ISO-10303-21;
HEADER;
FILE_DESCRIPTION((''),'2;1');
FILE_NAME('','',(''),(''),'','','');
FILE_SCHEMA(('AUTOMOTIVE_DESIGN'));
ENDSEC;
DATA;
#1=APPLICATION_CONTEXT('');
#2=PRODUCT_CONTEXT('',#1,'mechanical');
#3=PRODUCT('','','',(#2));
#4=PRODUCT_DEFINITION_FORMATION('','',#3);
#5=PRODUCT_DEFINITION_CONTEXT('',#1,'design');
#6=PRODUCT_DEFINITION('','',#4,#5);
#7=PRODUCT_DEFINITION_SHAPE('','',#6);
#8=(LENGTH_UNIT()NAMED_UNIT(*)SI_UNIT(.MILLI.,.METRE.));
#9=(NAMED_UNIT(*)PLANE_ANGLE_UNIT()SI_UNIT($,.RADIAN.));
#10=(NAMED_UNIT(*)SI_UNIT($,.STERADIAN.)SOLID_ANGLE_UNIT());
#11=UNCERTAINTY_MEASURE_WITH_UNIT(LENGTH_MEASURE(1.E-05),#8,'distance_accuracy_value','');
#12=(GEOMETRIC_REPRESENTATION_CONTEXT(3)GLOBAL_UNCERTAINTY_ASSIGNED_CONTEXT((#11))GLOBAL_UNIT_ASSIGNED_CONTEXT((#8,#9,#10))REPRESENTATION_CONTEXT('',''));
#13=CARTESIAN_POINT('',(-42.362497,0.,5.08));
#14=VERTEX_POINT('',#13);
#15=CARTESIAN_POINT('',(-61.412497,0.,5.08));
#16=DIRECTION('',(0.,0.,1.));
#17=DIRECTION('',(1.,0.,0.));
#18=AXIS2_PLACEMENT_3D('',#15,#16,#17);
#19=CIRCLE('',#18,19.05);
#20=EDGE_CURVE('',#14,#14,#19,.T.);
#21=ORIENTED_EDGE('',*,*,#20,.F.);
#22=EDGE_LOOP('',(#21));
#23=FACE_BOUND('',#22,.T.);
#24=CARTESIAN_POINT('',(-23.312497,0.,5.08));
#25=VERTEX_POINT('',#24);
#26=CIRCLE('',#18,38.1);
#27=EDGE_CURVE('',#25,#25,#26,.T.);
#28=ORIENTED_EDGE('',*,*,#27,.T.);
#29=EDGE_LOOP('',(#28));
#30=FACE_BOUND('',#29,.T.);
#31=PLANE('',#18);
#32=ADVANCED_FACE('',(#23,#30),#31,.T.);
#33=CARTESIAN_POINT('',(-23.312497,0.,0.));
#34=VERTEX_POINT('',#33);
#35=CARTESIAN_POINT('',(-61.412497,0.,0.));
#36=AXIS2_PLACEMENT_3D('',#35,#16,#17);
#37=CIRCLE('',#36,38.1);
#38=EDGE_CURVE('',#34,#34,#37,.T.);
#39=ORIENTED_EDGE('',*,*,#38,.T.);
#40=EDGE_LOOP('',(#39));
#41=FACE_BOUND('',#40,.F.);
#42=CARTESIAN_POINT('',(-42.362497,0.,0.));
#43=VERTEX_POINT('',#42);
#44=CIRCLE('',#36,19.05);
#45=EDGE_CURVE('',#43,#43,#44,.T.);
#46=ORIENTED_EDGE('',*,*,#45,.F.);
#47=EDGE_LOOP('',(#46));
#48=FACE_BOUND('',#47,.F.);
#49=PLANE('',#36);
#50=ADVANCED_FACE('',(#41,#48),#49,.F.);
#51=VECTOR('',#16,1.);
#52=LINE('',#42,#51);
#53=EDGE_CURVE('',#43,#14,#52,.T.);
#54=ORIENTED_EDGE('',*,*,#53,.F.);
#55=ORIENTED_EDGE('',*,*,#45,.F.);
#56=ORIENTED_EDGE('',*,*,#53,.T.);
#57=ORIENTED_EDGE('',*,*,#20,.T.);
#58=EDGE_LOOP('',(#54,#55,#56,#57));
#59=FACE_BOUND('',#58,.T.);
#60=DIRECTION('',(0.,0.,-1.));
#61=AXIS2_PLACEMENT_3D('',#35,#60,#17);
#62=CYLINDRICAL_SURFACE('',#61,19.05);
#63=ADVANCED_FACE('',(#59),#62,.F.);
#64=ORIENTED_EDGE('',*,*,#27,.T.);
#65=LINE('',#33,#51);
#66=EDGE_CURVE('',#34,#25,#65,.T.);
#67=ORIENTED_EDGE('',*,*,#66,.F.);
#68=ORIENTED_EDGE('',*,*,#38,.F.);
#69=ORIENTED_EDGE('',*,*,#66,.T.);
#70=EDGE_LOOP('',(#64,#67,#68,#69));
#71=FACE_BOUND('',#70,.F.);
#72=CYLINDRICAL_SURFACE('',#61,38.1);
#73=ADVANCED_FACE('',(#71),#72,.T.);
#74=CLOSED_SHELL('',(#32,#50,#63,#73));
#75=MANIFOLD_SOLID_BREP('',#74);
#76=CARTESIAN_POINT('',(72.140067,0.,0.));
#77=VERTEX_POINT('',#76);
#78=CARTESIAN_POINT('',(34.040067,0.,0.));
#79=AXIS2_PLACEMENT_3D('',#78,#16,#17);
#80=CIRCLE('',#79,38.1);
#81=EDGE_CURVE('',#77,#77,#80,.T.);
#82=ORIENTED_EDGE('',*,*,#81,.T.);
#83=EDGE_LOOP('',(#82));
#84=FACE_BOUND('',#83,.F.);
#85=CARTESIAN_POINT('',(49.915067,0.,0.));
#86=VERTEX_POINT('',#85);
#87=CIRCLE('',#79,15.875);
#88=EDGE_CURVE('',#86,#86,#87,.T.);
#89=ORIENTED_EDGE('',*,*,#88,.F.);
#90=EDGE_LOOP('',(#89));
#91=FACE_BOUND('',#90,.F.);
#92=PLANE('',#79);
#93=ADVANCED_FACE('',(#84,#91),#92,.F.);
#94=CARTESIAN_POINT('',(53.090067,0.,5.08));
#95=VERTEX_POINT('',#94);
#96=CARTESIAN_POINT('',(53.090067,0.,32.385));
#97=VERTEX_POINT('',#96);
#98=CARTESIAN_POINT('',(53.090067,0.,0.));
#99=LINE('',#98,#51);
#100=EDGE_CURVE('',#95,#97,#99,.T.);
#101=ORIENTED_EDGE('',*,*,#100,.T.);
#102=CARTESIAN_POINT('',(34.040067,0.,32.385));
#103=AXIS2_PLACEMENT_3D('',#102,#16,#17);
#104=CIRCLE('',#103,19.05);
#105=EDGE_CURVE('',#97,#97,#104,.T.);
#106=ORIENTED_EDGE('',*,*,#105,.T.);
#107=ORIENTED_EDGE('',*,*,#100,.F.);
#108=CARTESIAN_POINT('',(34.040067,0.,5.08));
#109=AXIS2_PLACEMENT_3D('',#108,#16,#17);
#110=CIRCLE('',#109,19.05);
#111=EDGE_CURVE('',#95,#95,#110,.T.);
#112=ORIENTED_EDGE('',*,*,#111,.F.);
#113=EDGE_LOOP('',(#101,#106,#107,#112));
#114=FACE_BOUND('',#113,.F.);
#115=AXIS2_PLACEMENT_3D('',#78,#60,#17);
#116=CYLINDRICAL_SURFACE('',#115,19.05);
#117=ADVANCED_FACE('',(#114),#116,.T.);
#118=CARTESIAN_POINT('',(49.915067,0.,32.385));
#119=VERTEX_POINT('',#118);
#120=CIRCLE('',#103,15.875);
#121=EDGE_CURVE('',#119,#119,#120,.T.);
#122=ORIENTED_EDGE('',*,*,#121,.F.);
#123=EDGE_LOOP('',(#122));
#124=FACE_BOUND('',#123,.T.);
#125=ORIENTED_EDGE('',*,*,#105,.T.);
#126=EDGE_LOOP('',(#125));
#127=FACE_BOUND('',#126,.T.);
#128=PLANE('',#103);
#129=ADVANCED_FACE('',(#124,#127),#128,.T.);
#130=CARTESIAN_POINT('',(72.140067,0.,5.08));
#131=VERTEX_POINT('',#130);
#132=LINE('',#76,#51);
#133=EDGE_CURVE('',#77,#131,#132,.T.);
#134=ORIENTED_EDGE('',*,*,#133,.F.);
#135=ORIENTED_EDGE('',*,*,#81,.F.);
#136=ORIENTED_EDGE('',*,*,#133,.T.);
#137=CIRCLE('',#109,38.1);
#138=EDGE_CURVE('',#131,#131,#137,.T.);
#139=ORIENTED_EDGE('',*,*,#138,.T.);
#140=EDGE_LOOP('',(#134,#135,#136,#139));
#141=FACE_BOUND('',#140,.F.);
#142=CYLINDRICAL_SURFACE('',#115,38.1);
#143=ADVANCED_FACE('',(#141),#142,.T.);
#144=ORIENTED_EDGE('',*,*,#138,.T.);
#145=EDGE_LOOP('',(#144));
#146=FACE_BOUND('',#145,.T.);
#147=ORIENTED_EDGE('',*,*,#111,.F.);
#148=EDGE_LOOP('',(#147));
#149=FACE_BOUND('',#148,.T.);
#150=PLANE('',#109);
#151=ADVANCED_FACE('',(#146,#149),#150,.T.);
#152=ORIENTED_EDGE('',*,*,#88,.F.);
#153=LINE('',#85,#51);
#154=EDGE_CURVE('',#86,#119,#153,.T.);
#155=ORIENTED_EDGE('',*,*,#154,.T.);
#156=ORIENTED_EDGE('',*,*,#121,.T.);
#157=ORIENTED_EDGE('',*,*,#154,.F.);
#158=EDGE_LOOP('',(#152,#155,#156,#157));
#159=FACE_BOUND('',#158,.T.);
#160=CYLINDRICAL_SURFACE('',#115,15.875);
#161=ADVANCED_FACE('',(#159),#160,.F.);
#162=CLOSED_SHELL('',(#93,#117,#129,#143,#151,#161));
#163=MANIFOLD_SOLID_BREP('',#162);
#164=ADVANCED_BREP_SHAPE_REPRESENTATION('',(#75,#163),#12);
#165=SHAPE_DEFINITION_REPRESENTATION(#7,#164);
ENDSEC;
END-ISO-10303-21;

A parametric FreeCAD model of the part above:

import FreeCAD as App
import Part
import Sketcher

V = App.Vector
Q = App.Units.Quantity

doc = App.newDocument("Part")
body = doc.addObject("PartDesign::Body", "Body")
body.AllowCompound = True

sketch1 = doc.addObject("Sketcher::SketchObject", "Sketch")
body.addObject(sketch1)
sketch1.AttachmentSupport = (doc.XY_Plane, [""])
sketch1.MapMode = "FlatFace"
sketch1.addGeometry(Part.Circle(V(34, 0, 0), V(0, 0, 1), 38), False)
sketch1.addGeometry(Part.Circle(V(34, 0, 0), V(0, 0, 1), 19), False)
sketch1.addGeometry(Part.Circle(V(-61, 0, 0), V(0, 0, 1), 38), False)
sketch1.addGeometry(Part.Circle(V(-61, 0, 0), V(0, 0, 1), 19), False)
sketch1.addConstraint(Sketcher.Constraint("Coincident", 1, 3, 0, 3))
sketch1.addConstraint(Sketcher.Constraint("Coincident", 3, 3, 2, 3))
sketch1.addConstraint(Sketcher.Constraint("Equal", 0, 2))
sketch1.addConstraint(Sketcher.Constraint("Equal", 1, 3))
sketch1.addConstraint(Sketcher.Constraint("PointOnObject", 0, 3, -1))
sketch1.addConstraint(Sketcher.Constraint("PointOnObject", 2, 3, -1))
sketch1.addConstraint(Sketcher.Constraint("Diameter", 0, Q("3 in")))
sketch1.addConstraint(Sketcher.Constraint("Diameter", 1, Q("1.5 in")))
sketch1.addConstraint(Sketcher.Constraint("DistanceX", -1, 1, 0, 3, 34.040067))
sketch1.addConstraint(Sketcher.Constraint("DistanceX", 2, 3, -1, 1, 61.412497))
pad1 = doc.addObject("PartDesign::Pad", "Pad")
body.addObject(pad1)
pad1.Profile = sketch1
pad1.Length = Q("0.2 in")

sketch2 = doc.addObject("Sketcher::SketchObject", "Sketch001")
body.addObject(sketch2)
sketch2.AttachmentSupport = (doc.XY_Plane, [""])
sketch2.MapMode = "FlatFace"
sketch2.addGeometry(Part.Circle(V(34, 0, 0), V(0, 0, 1), 19), False)
sketch2.addGeometry(Part.Circle(V(34, 0, 0), V(0, 0, 1), 16), False)
sketch2.addConstraint(Sketcher.Constraint("Coincident", 1, 3, 0, 3))
sketch2.addConstraint(Sketcher.Constraint("PointOnObject", 0, 3, -1))
sketch2.addConstraint(Sketcher.Constraint("Diameter", 0, Q("1.5 in")))
sketch2.addConstraint(Sketcher.Constraint("Diameter", 1, Q("1.25 in")))
sketch2.addConstraint(Sketcher.Constraint("DistanceX", -1, 1, 0, 3, 34.040067))
pad2 = doc.addObject("PartDesign::Pad", "Pad001")
body.addObject(pad2)
pad2.Profile = sketch2
pad2.Length = Q("1.275 in")

doc.recompute()
